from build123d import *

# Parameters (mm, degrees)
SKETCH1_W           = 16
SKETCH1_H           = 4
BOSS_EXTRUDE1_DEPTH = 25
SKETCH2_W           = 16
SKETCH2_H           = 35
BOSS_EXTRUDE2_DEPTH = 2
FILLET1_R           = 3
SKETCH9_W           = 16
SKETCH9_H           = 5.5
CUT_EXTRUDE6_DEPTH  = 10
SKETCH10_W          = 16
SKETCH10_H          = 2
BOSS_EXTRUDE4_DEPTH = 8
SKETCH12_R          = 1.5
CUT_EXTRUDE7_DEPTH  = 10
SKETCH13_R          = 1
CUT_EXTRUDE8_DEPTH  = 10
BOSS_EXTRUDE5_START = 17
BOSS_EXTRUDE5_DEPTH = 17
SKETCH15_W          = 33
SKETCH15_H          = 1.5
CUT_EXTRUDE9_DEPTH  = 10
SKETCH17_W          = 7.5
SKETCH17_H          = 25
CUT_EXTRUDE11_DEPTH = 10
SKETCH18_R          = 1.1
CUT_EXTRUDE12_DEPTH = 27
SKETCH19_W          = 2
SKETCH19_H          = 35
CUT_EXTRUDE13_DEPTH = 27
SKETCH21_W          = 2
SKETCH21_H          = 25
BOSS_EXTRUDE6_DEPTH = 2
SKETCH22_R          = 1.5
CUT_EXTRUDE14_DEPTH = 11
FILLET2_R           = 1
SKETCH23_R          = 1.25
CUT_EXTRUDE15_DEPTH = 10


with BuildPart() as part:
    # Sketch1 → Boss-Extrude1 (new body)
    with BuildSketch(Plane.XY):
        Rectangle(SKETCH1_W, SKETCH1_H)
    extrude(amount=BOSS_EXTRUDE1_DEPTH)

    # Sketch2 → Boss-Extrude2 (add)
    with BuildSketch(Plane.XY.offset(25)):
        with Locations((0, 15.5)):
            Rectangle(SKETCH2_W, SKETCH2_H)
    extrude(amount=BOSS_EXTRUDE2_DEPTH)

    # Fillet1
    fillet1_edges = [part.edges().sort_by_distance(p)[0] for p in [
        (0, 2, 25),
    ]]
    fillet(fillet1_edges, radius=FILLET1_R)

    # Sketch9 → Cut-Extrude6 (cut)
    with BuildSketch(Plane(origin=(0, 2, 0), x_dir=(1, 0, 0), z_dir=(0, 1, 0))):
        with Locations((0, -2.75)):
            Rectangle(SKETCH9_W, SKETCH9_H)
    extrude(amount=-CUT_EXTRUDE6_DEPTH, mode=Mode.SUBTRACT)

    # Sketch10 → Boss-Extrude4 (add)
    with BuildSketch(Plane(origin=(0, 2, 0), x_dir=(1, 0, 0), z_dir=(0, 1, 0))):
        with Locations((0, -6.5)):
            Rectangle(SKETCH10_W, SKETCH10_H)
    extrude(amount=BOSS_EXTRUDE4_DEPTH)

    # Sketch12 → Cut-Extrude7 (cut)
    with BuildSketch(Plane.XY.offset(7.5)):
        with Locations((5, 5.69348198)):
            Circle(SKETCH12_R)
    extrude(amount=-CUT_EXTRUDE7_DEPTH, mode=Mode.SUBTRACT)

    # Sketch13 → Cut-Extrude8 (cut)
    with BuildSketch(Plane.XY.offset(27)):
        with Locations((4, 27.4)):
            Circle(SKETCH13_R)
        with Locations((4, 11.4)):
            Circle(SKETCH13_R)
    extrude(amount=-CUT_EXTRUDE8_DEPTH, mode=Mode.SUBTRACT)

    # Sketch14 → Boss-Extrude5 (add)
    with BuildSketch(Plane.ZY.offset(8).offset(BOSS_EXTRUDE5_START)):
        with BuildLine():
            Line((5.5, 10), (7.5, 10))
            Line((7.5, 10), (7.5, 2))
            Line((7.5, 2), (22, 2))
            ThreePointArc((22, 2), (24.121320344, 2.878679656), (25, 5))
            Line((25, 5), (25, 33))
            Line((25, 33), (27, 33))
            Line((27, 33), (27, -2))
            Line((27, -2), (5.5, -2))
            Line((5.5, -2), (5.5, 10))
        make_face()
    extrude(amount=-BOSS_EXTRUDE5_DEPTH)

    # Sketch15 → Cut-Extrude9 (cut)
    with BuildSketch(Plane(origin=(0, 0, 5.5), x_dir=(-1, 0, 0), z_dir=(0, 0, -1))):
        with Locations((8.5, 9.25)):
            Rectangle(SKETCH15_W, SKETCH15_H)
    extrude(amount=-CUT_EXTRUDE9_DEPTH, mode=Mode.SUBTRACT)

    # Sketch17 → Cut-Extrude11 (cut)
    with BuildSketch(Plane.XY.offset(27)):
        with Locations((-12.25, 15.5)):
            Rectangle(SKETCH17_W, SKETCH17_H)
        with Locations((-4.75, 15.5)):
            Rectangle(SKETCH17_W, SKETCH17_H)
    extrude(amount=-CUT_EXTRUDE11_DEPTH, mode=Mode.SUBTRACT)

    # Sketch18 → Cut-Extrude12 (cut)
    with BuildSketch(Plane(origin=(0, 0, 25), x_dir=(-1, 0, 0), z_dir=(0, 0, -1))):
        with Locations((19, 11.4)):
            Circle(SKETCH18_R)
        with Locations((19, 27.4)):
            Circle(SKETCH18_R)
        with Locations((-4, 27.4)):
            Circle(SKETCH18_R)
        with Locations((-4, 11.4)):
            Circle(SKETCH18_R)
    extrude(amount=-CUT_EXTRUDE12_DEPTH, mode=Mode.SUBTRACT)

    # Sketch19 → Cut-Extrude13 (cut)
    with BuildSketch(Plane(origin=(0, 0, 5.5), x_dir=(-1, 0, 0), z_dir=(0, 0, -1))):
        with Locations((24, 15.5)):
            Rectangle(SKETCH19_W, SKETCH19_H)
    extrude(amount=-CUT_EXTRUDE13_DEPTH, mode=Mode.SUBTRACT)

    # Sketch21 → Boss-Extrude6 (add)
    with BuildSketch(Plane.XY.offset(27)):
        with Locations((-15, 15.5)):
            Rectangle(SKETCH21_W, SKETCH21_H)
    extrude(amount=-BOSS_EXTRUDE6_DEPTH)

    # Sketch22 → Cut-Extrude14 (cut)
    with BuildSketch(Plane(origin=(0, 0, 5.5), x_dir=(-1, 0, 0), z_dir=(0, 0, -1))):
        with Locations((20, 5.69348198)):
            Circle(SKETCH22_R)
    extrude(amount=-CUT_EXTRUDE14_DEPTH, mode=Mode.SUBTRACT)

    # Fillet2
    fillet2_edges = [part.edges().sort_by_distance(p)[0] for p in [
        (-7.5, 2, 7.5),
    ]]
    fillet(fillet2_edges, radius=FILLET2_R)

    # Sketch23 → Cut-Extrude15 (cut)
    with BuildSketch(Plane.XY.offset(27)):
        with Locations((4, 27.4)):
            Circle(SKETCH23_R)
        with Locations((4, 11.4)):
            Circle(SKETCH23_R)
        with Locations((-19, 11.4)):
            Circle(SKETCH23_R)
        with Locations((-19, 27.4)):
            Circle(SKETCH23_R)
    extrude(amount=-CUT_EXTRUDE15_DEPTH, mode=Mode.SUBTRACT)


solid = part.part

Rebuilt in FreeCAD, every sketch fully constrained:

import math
import FreeCAD as App
import Part
import Sketcher
from FreeCAD import Vector
Q = App.Units.Quantity


def edges_at(feature, points):
    """Names of the edges that pass closest to the given points."""
    edges = feature.Shape.Edges
    near = lambda p: min(range(len(edges)), key=lambda i: edges[i].distToShape(Part.Vertex(*p))[0])
    return sorted({f"Edge{near(p) + 1}" for p in points})


def add_polygon(sketch, points):
    """Adds a closed chain of lines whose ends are joined by coincident constraints."""
    first, n = sketch.GeometryCount, len(points)
    for a, b in zip(points, points[1:] + points[:1]):
        sketch.addGeometry(Part.LineSegment(App.Vector(*a, 0), App.Vector(*b, 0)), False)
    for i in range(n):
        sketch.addConstraint(Sketcher.Constraint("Coincident", first + i, 2, first + (i + 1) % n, 1))

doc = App.newDocument("Part")
params = doc.addObject("Spreadsheet::Sheet", "Params")
for row, (alias, value) in enumerate([
    ("sketch1_width", "16 mm"),
    ("sketch1_height", "4 mm"),
    ("pad1_length", "25 mm"),
    ("sketch2_width", "16 mm"),
    ("sketch2_height", "35 mm"),
    ("pad2_length", "2 mm"),
    ("fillet_radius", "3 mm"),
    ("sketch3_width", "16 mm"),
    ("sketch3_height", "5.5 mm"),
    ("pocket1_length", "10 mm"),
    ("sketch4_width", "16 mm"),
    ("sketch4_height", "2 mm"),
    ("pad3_length", "8 mm"),
    ("sketch5_diameter", "3 mm"),
    ("pocket2_length", "10 mm"),
    ("sketch6_diameter", "2 mm"),
    ("pocket3_length", "10 mm"),
    ("sketch7_radius", "3 mm"),
    ("sketch7_width", "12 mm"),
    ("sketch7_width2", "35 mm"),
    ("sketch7_width3", "28 mm"),
    ("sketch7_height", "2 mm"),
    ("pad4_length", "17 mm"),
    ("sketch8_width", "33 mm"),
    ("sketch8_height", "1.5 mm"),
    ("pocket4_length", "10 mm"),
    ("sketch9_width", "15 mm"),
    ("sketch9_height", "25 mm"),
    ("pocket5_length", "10 mm"),
    ("sketch10_diameter", "2.2 mm"),
    ("pocket6_length", "27 mm"),
    ("sketch11_width", "2 mm"),
    ("sketch11_height", "35 mm"),
    ("pocket7_length", "27 mm"),
    ("sketch12_width", "2 mm"),
    ("sketch12_height", "25 mm"),
    ("pad5_length", "2 mm"),
    ("sketch13_diameter", "3 mm"),
    ("pocket8_length", "11 mm"),
    ("fillet2_radius", "1 mm"),
    ("sketch14_diameter", "2.5 mm"),
    ("pocket9_length", "10 mm"),
], start=1):
    params.set(f"A{row}", alias)
    params.set(f"B{row}", "=" + value)
    params.setAlias(f"B{row}", alias)

body = doc.addObject("PartDesign::Body", "Body")

sketch1 = body.newObject("Sketcher::SketchObject", "Sketch")
sketch1.AttachmentSupport = (doc.getObject("XY_Plane"), [""])
sketch1.MapMode = "FlatFace"
add_polygon(sketch1, [(-8, 2), (-8, -2), (8, -2), (8, 2)])
sketch1.addConstraint(Sketcher.Constraint("Vertical", 0))
sketch1.addConstraint(Sketcher.Constraint("Horizontal", 1))
sketch1.addConstraint(Sketcher.Constraint("Vertical", 2))
sketch1.addConstraint(Sketcher.Constraint("Horizontal", 3))
sketch1.addConstraint(Sketcher.Constraint("Symmetric", 0, 2, 2, 2, -1, 1))
sketch1.addConstraint(Sketcher.Constraint("DistanceX", 1, 1, 1, 2, Q("16 mm")))
sketch1.addConstraint(Sketcher.Constraint("DistanceY", 0, 2, 0, 1, Q("4 mm")))
sketch1.setExpression("Constraints[9]", "Params.sketch1_width")
sketch1.setExpression("Constraints[10]", "Params.sketch1_height")
pad1 = body.newObject("PartDesign::Pad", "Pad")
pad1.Profile = sketch1
pad1.setExpression("Length", "Params.pad1_length")

sketch2 = body.newObject("Sketcher::SketchObject", "Sketch001")
sketch2.AttachmentSupport = (doc.getObject("XY_Plane"), [""])
sketch2.MapMode = "FlatFace"
sketch2.AttachmentOffset = App.Placement(Vector(0, 0, 25), App.Rotation())
add_polygon(sketch2, [(-8, 33), (-8, -2), (8, -2), (8, 33)])
sketch2.addConstraint(Sketcher.Constraint("Vertical", 0))
sketch2.addConstraint(Sketcher.Constraint("Horizontal", 1))
sketch2.addConstraint(Sketcher.Constraint("Vertical", 2))
sketch2.addConstraint(Sketcher.Constraint("Horizontal", 3))
sketch2.addConstraint(Sketcher.Constraint("DistanceX", 1, 1, 1, 2, Q("16 mm")))
sketch2.addConstraint(Sketcher.Constraint("DistanceY", 0, 2, 0, 1, Q("35 mm")))
sketch2.addConstraint(Sketcher.Constraint("DistanceX", 0, 2, -1, 1, Q("8 mm")))
sketch2.addConstraint(Sketcher.Constraint("DistanceY", 0, 2, -1, 1, Q("2 mm")))
sketch2.setExpression("Constraints[8]", "Params.sketch2_width")
sketch2.setExpression("Constraints[9]", "Params.sketch2_height")
pad2 = body.newObject("PartDesign::Pad", "Pad001")
pad2.Profile = sketch2
pad2.setExpression("Length", "Params.pad2_length")
doc.recompute()

fillet = body.newObject("PartDesign::Fillet", "Fillet")
fillet.Base = (pad2, edges_at(pad2, [(0, 2, 25)]))
fillet.setExpression("Radius", "Params.fillet_radius")

sketch3 = body.newObject("Sketcher::SketchObject", "Sketch002")
sketch3.AttachmentSupport = (doc.getObject("XZ_Plane"), [""])
sketch3.MapMode = "FlatFace"
sketch3.AttachmentOffset = App.Placement(Vector(0, 0, -2), App.Rotation())
add_polygon(sketch3, [(-8, 0), (-8, 6), (8, 6), (8, 0)])
sketch3.addConstraint(Sketcher.Constraint("Vertical", 0))
sketch3.addConstraint(Sketcher.Constraint("Horizontal", 1))
sketch3.addConstraint(Sketcher.Constraint("Vertical", 2))
sketch3.addConstraint(Sketcher.Constraint("Horizontal", 3))
sketch3.addConstraint(Sketcher.Constraint("Symmetric", 2, 2, 3, 2, -1, 1))
sketch3.addConstraint(Sketcher.Constraint("DistanceX", 1, 1, 1, 2, Q("16 mm")))
sketch3.addConstraint(Sketcher.Constraint("DistanceY", 0, 1, 0, 2, Q("5.5 mm")))
sketch3.setExpression("Constraints[9]", "Params.sketch3_width")
sketch3.setExpression("Constraints[10]", "Params.sketch3_height")
pocket1 = body.newObject("PartDesign::Pocket", "Pocket")
pocket1.Profile = sketch3
pocket1.setExpression("Length", "Params.pocket1_length")
pocket1.Reversed = True

sketch4 = body.newObject("Sketcher::SketchObject", "Sketch003")
sketch4.AttachmentSupport = (doc.getObject("XZ_Plane"), [""])
sketch4.MapMode = "FlatFace"
sketch4.AttachmentOffset = App.Placement(Vector(0, 0, -2), App.Rotation())
add_polygon(sketch4, [(-8, 5.5), (-8, 7.5), (8, 7.5), (8, 5.5)])
sketch4.addConstraint(Sketcher.Constraint("Vertical", 0))
sketch4.addConstraint(Sketcher.Constraint("Horizontal", 1))
sketch4.addConstraint(Sketcher.Constraint("Vertical", 2))
sketch4.addConstraint(Sketcher.Constraint("Horizontal", 3))
sketch4.addConstraint(Sketcher.Constraint("DistanceX", 1, 1, 1, 2, Q("16 mm")))
sketch4.addConstraint(Sketcher.Constraint("DistanceY", 0, 1, 0, 2, Q("2 mm")))
sketch4.addConstraint(Sketcher.Constraint("DistanceX", 0, 2, -1, 1, Q("8 mm")))
sketch4.addConstraint(Sketcher.Constraint("DistanceY", -1, 1, 0, 2, Q("7.5 mm")))
sketch4.setExpression("Constraints[8]", "Params.sketch4_width")
sketch4.setExpression("Constraints[9]", "Params.sketch4_height")
pad3 = body.newObject("PartDesign::Pad", "Pad002")
pad3.Profile = sketch4
pad3.setExpression("Length", "Params.pad3_length")
pad3.Reversed = True

sketch5 = body.newObject("Sketcher::SketchObject", "Sketch004")
sketch5.AttachmentSupport = (doc.getObject("XY_Plane"), [""])
sketch5.MapMode = "FlatFace"
sketch5.AttachmentOffset = App.Placement(Vector(0, 0, 7.5), App.Rotation())
sketch5.addGeometry(Part.Circle(Vector(5, 5.7, 0), Vector(0, 0, 1), 1.5), False)
sketch5.addConstraint(Sketcher.Constraint("Diameter", 0, Q("3 mm")))
sketch5.addConstraint(Sketcher.Constraint("DistanceX", -1, 1, 0, 3, Q("5 mm")))
sketch5.addConstraint(Sketcher.Constraint("DistanceY", -1, 1, 0, 3, Q("5.693482 mm")))
sketch5.setExpression("Constraints[0]", "Params.sketch5_diameter")
pocket2 = body.newObject("PartDesign::Pocket", "Pocket001")
pocket2.Profile = sketch5
pocket2.setExpression("Length", "Params.pocket2_length")

sketch6 = body.newObject("Sketcher::SketchObject", "Sketch005")
sketch6.AttachmentSupport = (doc.getObject("XY_Plane"), [""])
sketch6.MapMode = "FlatFace"
sketch6.AttachmentOffset = App.Placement(Vector(0, 0, 27), App.Rotation())
sketch6.addGeometry(Part.Circle(Vector(4, 27.4, 0), Vector(0, 0, 1), 1), False)
sketch6.addGeometry(Part.Circle(Vector(4, 11.4, 0), Vector(0, 0, 1), 1), False)
sketch6.addConstraint(Sketcher.Constraint("Equal", 0, 1))
sketch6.addConstraint(Sketcher.Constraint("Vertical", 0, 3, 1, 3))
sketch6.addConstraint(Sketcher.Constraint("Diameter", 0, Q("2 mm")))
sketch6.addConstraint(Sketcher.Constraint("DistanceX", -1, 1, 0, 3, Q("4 mm")))
sketch6.addConstraint(Sketcher.Constraint("DistanceY", 1, 3, 0, 3, Q("16 mm")))
sketch6.addConstraint(Sketcher.Constraint("DistanceY", -1, 1, 0, 3, Q("27.4 mm")))
sketch6.setExpression("Constraints[2]", "Params.sketch6_diameter")
pocket3 = body.newObject("PartDesign::Pocket", "Pocket002")
pocket3.Profile = sketch6
pocket3.setExpression("Length", "Params.pocket3_length")

sketch7 = body.newObject("Sketcher::SketchObject", "Sketch006")
sketch7.AttachmentSupport = (doc.getObject("YZ_Plane"), [""])
sketch7.MapMode = "FlatFace"
sketch7.AttachmentOffset = App.Placement(Vector(0, 0, -25), App.Rotation())
sketch7.addGeometry(Part.LineSegment(Vector(10, 7.5, 0), Vector(10, 5.5, 0)), False)
sketch7.addGeometry(Part.LineSegment(Vector(10, 5.5, 0), Vector(-2, 5.5, 0)), False)
sketch7.addGeometry(Part.LineSegment(Vector(-2, 5.5, 0), Vector(-2, 27, 0)), False)
sketch7.addGeometry(Part.LineSegment(Vector(-2, 27, 0), Vector(33, 27, 0)), False)
sketch7.addGeometry(Part.LineSegment(Vector(33, 27, 0), Vector(33, 25, 0)), False)
sketch7.addGeometry(Part.LineSegment(Vector(33, 25, 0), Vector(5, 25, 0)), False)
sketch7.addGeometry(Part.ArcOfCircle(Part.Circle(Vector(5, 22, 0), Vector(0, 0, 1), 3), math.radians(90), math.radians(180)), False)
sketch7.addGeometry(Part.LineSegment(Vector(2, 22, 0), Vector(2, 7.5, 0)), False)
sketch7.addGeometry(Part.LineSegment(Vector(2, 7.5, 0), Vector(10, 7.5, 0)), False)
sketch7.addConstraint(Sketcher.Constraint("Coincident", 0, 2, 1, 1))
sketch7.addConstraint(Sketcher.Constraint("Coincident", 1, 2, 2, 1))
sketch7.addConstraint(Sketcher.Constraint("Coincident", 2, 2, 3, 1))
sketch7.addConstraint(Sketcher.Constraint("Coincident", 3, 2, 4, 1))
sketch7.addConstraint(Sketcher.Constraint("Coincident", 4, 2, 5, 1))
sketch7.addConstraint(Sketcher.Constraint("Tangent", 5, 2, 6, 1))
sketch7.addConstraint(Sketcher.Constraint("Tangent", 6, 2, 7, 1))
sketch7.addConstraint(Sketcher.Constraint("Coincident", 7, 2, 8, 1))
sketch7.addConstraint(Sketcher.Constraint("Coincident", 8, 2, 0, 1))
sketch7.addConstraint(Sketcher.Constraint("Vertical", 0))
sketch7.addConstraint(Sketcher.Constraint("Horizontal", 1))
sketch7.addConstraint(Sketcher.Constraint("Vertical", 2))
sketch7.addConstraint(Sketcher.Constraint("Horizontal", 3))
sketch7.addConstraint(Sketcher.Constraint("Vertical", 4))
sketch7.addConstraint(Sketcher.Constraint("Horizontal", 5))
sketch7.addConstraint(Sketcher.Constraint("Vertical", 7))
sketch7.addConstraint(Sketcher.Constraint("Horizontal", 8))
sketch7.addConstraint(Sketcher.Constraint("Equal", 0, 4))
sketch7.addConstraint(Sketcher.Constraint("Radius", 6, Q("3 mm")))
sketch7.addConstraint(Sketcher.Constraint("DistanceX", 1, 2, 1, 1, Q("12 mm")))
sketch7.addConstraint(Sketcher.Constraint("DistanceX", 3, 1, 3, 2, Q("35 mm")))
sketch7.addConstraint(Sketcher.Constraint("DistanceX", 5, 2, 5, 1, Q("28 mm")))
sketch7.addConstraint(Sketcher.Constraint("DistanceY", 0, 2, 0, 1, Q("2 mm")))
sketch7.addConstraint(Sketcher.Constraint("DistanceY", 2, 1, 2, 2, Q("21.5 mm")))
sketch7.addConstraint(Sketcher.Constraint("DistanceX", -1, 1, 6, 3, Q("5 mm")))
sketch7.addConstraint(Sketcher.Constraint("DistanceY", -1, 1, 6, 3, Q("22 mm")))
sketch7.setExpression("Constraints[18]", "Params.sketch7_radius")
sketch7.setExpression("Constraints[19]", "Params.sketch7_width")
sketch7.setExpression("Constraints[20]", "Params.sketch7_width2")
sketch7.setExpression("Constraints[21]", "Params.sketch7_width3")
sketch7.setExpression("Constraints[22]", "Params.sketch7_height")
pad4 = body.newObject("PartDesign::Pad", "Pad003")
pad4.Profile = sketch7
pad4.setExpression("Length", "Params.pad4_length")

sketch8 = body.newObject("Sketcher::SketchObject", "Sketch007")
sketch8.AttachmentSupport = (doc.getObject("XY_Plane"), [""])
sketch8.MapMode = "FlatFace"
sketch8.AttachmentOffset = App.Placement(Vector(0, 0, 5.5), App.Rotation())
add_polygon(sketch8, [(8, 10), (8, 8.5), (-25, 8.5), (-25, 10)])
sketch8.addConstraint(Sketcher.Constraint("Vertical", 0))
sketch8.addConstraint(Sketcher.Constraint("Horizontal", 1))
sketch8.addConstraint(Sketcher.Constraint("Vertical", 2))
sketch8.addConstraint(Sketcher.Constraint("Horizontal", 3))
sketch8.addConstraint(Sketcher.Constraint("DistanceX", 1, 2, 1, 1, Q("33 mm")))
sketch8.addConstraint(Sketcher.Constraint("DistanceY", 0, 2, 0, 1, Q("1.5 mm")))
sketch8.addConstraint(Sketcher.Constraint("DistanceX", -1, 1, 0, 2, Q("8 mm")))
sketch8.addConstraint(Sketcher.Constraint("DistanceY", -1, 1, 2, 2, Q("10 mm")))
sketch8.setExpression("Constraints[8]", "Params.sketch8_width")
sketch8.setExpression("Constraints[9]", "Params.sketch8_height")
pocket4 = body.newObject("PartDesign::Pocket", "Pocket003")
pocket4.Profile = sketch8
pocket4.setExpression("Length", "Params.pocket4_length")
pocket4.Reversed = True

sketch9 = body.newObject("Sketcher::SketchObject", "Sketch008")
sketch9.AttachmentSupport = (doc.getObject("XY_Plane"), [""])
sketch9.MapMode = "FlatFace"
sketch9.AttachmentOffset = App.Placement(Vector(0, 0, 27), App.Rotation())
add_polygon(sketch9, [(-16, 28), (-16, 3), (-1, 3), (-1, 28)])
sketch9.addConstraint(Sketcher.Constraint("Vertical", 0))
sketch9.addConstraint(Sketcher.Constraint("Horizontal", 1))
sketch9.addConstraint(Sketcher.Constraint("Vertical", 2))
sketch9.addConstraint(Sketcher.Constraint("Horizontal", 3))
sketch9.addConstraint(Sketcher.Constraint("DistanceX", 1, 1, 1, 2, Q("15 mm")))
sketch9.addConstraint(Sketcher.Constraint("DistanceY", 0, 2, 0, 1, Q("25 mm")))
sketch9.addConstraint(Sketcher.Constraint("DistanceX", 0, 2, -1, 1, Q("16 mm")))
sketch9.addConstraint(Sketcher.Constraint("DistanceY", -1, 1, 0, 2, Q("3 mm")))
sketch9.setExpression("Constraints[8]", "Params.sketch9_width")
sketch9.setExpression("Constraints[9]", "Params.sketch9_height")
pocket5 = body.newObject("PartDesign::Pocket", "Pocket004")
pocket5.Profile = sketch9
pocket5.setExpression("Length", "Params.pocket5_length")

sketch10 = body.newObject("Sketcher::SketchObject", "Sketch009")
sketch10.AttachmentSupport = (doc.getObject("XY_Plane"), [""])
sketch10.MapMode = "FlatFace"
sketch10.AttachmentOffset = App.Placement(Vector(0, 0, 25), App.Rotation())
sketch10.addGeometry(Part.Circle(Vector(-19, 11.4, 0), Vector(0, 0, 1), 1.1), False)
sketch10.addGeometry(Part.Circle(Vector(-19, 27.4, 0), Vector(0, 0, 1), 1.1), False)
sketch10.addGeometry(Part.Circle(Vector(4, 27.4, 0), Vector(0, 0, 1), 1.1), False)
sketch10.addGeometry(Part.Circle(Vector(4, 11.4, 0), Vector(0, 0, 1), 1.1), False)
sketch10.addConstraint(Sketcher.Constraint("Equal", 0, 1))
sketch10.addConstraint(Sketcher.Constraint("Equal", 1, 2))
sketch10.addConstraint(Sketcher.Constraint("Equal", 2, 3))
sketch10.addConstraint(Sketcher.Constraint("Horizontal", 1, 3, 2, 3))
sketch10.addConstraint(Sketcher.Constraint("Horizontal", 0, 3, 3, 3))
sketch10.addConstraint(Sketcher.Constraint("Vertical", 0, 3, 1, 3))
sketch10.addConstraint(Sketcher.Constraint("Vertical", 2, 3, 3, 3))
sketch10.addConstraint(Sketcher.Constraint("Diameter", 0, Q("2.2 mm")))
sketch10.addConstraint(Sketcher.Constraint("DistanceX", 0, 3, -1, 1, Q("19 mm")))
sketch10.addConstraint(Sketcher.Constraint("DistanceX", -1, 1, 2, 3, Q("4 mm")))
sketch10.addConstraint(Sketcher.Constraint("DistanceY", 0, 3, 1, 3, Q("16 mm")))
sketch10.addConstraint(Sketcher.Constraint("DistanceY", -1, 1, 0, 3, Q("11.4 mm")))
sketch10.setExpression("Constraints[7]", "Params.sketch10_diameter")
pocket6 = body.newObject("PartDesign::Pocket", "Pocket005")
pocket6.Profile = sketch10
pocket6.setExpression("Length", "Params.pocket6_length")
pocket6.Reversed = True

sketch11 = body.newObject("Sketcher::SketchObject", "Sketch010")
sketch11.AttachmentSupport = (doc.getObject("XY_Plane"), [""])
sketch11.MapMode = "FlatFace"
sketch11.AttachmentOffset = App.Placement(Vector(0, 0, 5.5), App.Rotation())
add_polygon(sketch11, [(-23, 33), (-23, -2), (-25, -2), (-25, 33)])
sketch11.addConstraint(Sketcher.Constraint("Vertical", 0))
sketch11.addConstraint(Sketcher.Constraint("Horizontal", 1))
sketch11.addConstraint(Sketcher.Constraint("Vertical", 2))
sketch11.addConstraint(Sketcher.Constraint("Horizontal", 3))
sketch11.addConstraint(Sketcher.Constraint("DistanceX", 1, 2, 1, 1, Q("2 mm")))
sketch11.addConstraint(Sketcher.Constraint("DistanceY", 0, 2, 0, 1, Q("35 mm")))
sketch11.addConstraint(Sketcher.Constraint("DistanceX", 0, 2, -1, 1, Q("23 mm")))
sketch11.addConstraint(Sketcher.Constraint("DistanceY", 0, 2, -1, 1, Q("2 mm")))
sketch11.setExpression("Constraints[8]", "Params.sketch11_width")
sketch11.setExpression("Constraints[9]", "Params.sketch11_height")
pocket7 = body.newObject("PartDesign::Pocket", "Pocket006")
pocket7.Profile = sketch11
pocket7.setExpression("Length", "Params.pocket7_length")
pocket7.Reversed = True

sketch12 = body.newObject("Sketcher::SketchObject", "Sketch011")
sketch12.AttachmentSupport = (doc.getObject("XY_Plane"), [""])
sketch12.MapMode = "FlatFace"
sketch12.AttachmentOffset = App.Placement(Vector(0, 0, 27), App.Rotation())
add_polygon(sketch12, [(-16, 28), (-16, 3), (-14, 3), (-14, 28)])
sketch12.addConstraint(Sketcher.Constraint("Vertical", 0))
sketch12.addConstraint(Sketcher.Constraint("Horizontal", 1))
sketch12.addConstraint(Sketcher.Constraint("Vertical", 2))
sketch12.addConstraint(Sketcher.Constraint("Horizontal", 3))
sketch12.addConstraint(Sketcher.Constraint("DistanceX", 1, 1, 1, 2, Q("2 mm")))
sketch12.addConstraint(Sketcher.Constraint("DistanceY", 0, 2, 0, 1, Q("25 mm")))
sketch12.addConstraint(Sketcher.Constraint("DistanceX", 0, 2, -1, 1, Q("16 mm")))
sketch12.addConstraint(Sketcher.Constraint("DistanceY", -1, 1, 0, 2, Q("3 mm")))
sketch12.setExpression("Constraints[8]", "Params.sketch12_width")
sketch12.setExpression("Constraints[9]", "Params.sketch12_height")
pad5 = body.newObject("PartDesign::Pad", "Pad004")
pad5.Profile = sketch12
pad5.setExpression("Length", "Params.pad5_length")
pad5.Reversed = True

sketch13 = body.newObject("Sketcher::SketchObject", "Sketch012")
sketch13.AttachmentSupport = (doc.getObject("XY_Plane"), [""])
sketch13.MapMode = "FlatFace"
sketch13.AttachmentOffset = App.Placement(Vector(0, 0, 5.5), App.Rotation())
sketch13.addGeometry(Part.Circle(Vector(-20, 5.7, 0), Vector(0, 0, 1), 1.5), False)
sketch13.addConstraint(Sketcher.Constraint("Diameter", 0, Q("3 mm")))
sketch13.addConstraint(Sketcher.Constraint("DistanceX", 0, 3, -1, 1, Q("20 mm")))
sketch13.addConstraint(Sketcher.Constraint("DistanceY", -1, 1, 0, 3, Q("5.693482 mm")))
sketch13.setExpression("Constraints[0]", "Params.sketch13_diameter")
pocket8 = body.newObject("PartDesign::Pocket", "Pocket007")
pocket8.Profile = sketch13
pocket8.setExpression("Length", "Params.pocket8_length")
pocket8.Reversed = True
doc.recompute()

fillet2 = body.newObject("PartDesign::Fillet", "Fillet001")
fillet2.Base = (pocket8, edges_at(pocket8, [(-7.5, 2, 7.5)]))
fillet2.setExpression("Radius", "Params.fillet2_radius")

sketch14 = body.newObject("Sketcher::SketchObject", "Sketch013")
sketch14.AttachmentSupport = (doc.getObject("XY_Plane"), [""])
sketch14.MapMode = "FlatFace"
sketch14.AttachmentOffset = App.Placement(Vector(0, 0, 27), App.Rotation())
sketch14.addGeometry(Part.Circle(Vector(4, 27.4, 0), Vector(0, 0, 1), 1.2), False)
sketch14.addGeometry(Part.Circle(Vector(4, 11.4, 0), Vector(0, 0, 1), 1.2), False)
sketch14.addGeometry(Part.Circle(Vector(-19, 11.4, 0), Vector(0, 0, 1), 1.2), False)
sketch14.addGeometry(Part.Circle(Vector(-19, 27.4, 0), Vector(0, 0, 1), 1.2), False)
sketch14.addConstraint(Sketcher.Constraint("Equal", 0, 1))
sketch14.addConstraint(Sketcher.Constraint("Equal", 1, 2))
sketch14.addConstraint(Sketcher.Constraint("Equal", 2, 3))
sketch14.addConstraint(Sketcher.Constraint("Horizontal", 1, 3, 2, 3))
sketch14.addConstraint(Sketcher.Constraint("Horizontal", 0, 3, 3, 3))
sketch14.addConstraint(Sketcher.Constraint("Vertical", 0, 3, 1, 3))
sketch14.addConstraint(Sketcher.Constraint("Vertical", 2, 3, 3, 3))
sketch14.addConstraint(Sketcher.Constraint("Diameter", 0, Q("2.5 mm")))
sketch14.addConstraint(Sketcher.Constraint("DistanceX", -1, 1, 0, 3, Q("4 mm")))
sketch14.addConstraint(Sketcher.Constraint("DistanceX", 2, 3, -1, 1, Q("19 mm")))
sketch14.addConstraint(Sketcher.Constraint("DistanceY", 1, 3, 0, 3, Q("16 mm")))
sketch14.addConstraint(Sketcher.Constraint("DistanceY", -1, 1, 0, 3, Q("27.4 mm")))
sketch14.setExpression("Constraints[7]", "Params.sketch14_diameter")
pocket9 = body.newObject("PartDesign::Pocket", "Pocket008")
pocket9.Profile = sketch14
pocket9.setExpression("Length", "Params.pocket9_length")

doc.recompute()
